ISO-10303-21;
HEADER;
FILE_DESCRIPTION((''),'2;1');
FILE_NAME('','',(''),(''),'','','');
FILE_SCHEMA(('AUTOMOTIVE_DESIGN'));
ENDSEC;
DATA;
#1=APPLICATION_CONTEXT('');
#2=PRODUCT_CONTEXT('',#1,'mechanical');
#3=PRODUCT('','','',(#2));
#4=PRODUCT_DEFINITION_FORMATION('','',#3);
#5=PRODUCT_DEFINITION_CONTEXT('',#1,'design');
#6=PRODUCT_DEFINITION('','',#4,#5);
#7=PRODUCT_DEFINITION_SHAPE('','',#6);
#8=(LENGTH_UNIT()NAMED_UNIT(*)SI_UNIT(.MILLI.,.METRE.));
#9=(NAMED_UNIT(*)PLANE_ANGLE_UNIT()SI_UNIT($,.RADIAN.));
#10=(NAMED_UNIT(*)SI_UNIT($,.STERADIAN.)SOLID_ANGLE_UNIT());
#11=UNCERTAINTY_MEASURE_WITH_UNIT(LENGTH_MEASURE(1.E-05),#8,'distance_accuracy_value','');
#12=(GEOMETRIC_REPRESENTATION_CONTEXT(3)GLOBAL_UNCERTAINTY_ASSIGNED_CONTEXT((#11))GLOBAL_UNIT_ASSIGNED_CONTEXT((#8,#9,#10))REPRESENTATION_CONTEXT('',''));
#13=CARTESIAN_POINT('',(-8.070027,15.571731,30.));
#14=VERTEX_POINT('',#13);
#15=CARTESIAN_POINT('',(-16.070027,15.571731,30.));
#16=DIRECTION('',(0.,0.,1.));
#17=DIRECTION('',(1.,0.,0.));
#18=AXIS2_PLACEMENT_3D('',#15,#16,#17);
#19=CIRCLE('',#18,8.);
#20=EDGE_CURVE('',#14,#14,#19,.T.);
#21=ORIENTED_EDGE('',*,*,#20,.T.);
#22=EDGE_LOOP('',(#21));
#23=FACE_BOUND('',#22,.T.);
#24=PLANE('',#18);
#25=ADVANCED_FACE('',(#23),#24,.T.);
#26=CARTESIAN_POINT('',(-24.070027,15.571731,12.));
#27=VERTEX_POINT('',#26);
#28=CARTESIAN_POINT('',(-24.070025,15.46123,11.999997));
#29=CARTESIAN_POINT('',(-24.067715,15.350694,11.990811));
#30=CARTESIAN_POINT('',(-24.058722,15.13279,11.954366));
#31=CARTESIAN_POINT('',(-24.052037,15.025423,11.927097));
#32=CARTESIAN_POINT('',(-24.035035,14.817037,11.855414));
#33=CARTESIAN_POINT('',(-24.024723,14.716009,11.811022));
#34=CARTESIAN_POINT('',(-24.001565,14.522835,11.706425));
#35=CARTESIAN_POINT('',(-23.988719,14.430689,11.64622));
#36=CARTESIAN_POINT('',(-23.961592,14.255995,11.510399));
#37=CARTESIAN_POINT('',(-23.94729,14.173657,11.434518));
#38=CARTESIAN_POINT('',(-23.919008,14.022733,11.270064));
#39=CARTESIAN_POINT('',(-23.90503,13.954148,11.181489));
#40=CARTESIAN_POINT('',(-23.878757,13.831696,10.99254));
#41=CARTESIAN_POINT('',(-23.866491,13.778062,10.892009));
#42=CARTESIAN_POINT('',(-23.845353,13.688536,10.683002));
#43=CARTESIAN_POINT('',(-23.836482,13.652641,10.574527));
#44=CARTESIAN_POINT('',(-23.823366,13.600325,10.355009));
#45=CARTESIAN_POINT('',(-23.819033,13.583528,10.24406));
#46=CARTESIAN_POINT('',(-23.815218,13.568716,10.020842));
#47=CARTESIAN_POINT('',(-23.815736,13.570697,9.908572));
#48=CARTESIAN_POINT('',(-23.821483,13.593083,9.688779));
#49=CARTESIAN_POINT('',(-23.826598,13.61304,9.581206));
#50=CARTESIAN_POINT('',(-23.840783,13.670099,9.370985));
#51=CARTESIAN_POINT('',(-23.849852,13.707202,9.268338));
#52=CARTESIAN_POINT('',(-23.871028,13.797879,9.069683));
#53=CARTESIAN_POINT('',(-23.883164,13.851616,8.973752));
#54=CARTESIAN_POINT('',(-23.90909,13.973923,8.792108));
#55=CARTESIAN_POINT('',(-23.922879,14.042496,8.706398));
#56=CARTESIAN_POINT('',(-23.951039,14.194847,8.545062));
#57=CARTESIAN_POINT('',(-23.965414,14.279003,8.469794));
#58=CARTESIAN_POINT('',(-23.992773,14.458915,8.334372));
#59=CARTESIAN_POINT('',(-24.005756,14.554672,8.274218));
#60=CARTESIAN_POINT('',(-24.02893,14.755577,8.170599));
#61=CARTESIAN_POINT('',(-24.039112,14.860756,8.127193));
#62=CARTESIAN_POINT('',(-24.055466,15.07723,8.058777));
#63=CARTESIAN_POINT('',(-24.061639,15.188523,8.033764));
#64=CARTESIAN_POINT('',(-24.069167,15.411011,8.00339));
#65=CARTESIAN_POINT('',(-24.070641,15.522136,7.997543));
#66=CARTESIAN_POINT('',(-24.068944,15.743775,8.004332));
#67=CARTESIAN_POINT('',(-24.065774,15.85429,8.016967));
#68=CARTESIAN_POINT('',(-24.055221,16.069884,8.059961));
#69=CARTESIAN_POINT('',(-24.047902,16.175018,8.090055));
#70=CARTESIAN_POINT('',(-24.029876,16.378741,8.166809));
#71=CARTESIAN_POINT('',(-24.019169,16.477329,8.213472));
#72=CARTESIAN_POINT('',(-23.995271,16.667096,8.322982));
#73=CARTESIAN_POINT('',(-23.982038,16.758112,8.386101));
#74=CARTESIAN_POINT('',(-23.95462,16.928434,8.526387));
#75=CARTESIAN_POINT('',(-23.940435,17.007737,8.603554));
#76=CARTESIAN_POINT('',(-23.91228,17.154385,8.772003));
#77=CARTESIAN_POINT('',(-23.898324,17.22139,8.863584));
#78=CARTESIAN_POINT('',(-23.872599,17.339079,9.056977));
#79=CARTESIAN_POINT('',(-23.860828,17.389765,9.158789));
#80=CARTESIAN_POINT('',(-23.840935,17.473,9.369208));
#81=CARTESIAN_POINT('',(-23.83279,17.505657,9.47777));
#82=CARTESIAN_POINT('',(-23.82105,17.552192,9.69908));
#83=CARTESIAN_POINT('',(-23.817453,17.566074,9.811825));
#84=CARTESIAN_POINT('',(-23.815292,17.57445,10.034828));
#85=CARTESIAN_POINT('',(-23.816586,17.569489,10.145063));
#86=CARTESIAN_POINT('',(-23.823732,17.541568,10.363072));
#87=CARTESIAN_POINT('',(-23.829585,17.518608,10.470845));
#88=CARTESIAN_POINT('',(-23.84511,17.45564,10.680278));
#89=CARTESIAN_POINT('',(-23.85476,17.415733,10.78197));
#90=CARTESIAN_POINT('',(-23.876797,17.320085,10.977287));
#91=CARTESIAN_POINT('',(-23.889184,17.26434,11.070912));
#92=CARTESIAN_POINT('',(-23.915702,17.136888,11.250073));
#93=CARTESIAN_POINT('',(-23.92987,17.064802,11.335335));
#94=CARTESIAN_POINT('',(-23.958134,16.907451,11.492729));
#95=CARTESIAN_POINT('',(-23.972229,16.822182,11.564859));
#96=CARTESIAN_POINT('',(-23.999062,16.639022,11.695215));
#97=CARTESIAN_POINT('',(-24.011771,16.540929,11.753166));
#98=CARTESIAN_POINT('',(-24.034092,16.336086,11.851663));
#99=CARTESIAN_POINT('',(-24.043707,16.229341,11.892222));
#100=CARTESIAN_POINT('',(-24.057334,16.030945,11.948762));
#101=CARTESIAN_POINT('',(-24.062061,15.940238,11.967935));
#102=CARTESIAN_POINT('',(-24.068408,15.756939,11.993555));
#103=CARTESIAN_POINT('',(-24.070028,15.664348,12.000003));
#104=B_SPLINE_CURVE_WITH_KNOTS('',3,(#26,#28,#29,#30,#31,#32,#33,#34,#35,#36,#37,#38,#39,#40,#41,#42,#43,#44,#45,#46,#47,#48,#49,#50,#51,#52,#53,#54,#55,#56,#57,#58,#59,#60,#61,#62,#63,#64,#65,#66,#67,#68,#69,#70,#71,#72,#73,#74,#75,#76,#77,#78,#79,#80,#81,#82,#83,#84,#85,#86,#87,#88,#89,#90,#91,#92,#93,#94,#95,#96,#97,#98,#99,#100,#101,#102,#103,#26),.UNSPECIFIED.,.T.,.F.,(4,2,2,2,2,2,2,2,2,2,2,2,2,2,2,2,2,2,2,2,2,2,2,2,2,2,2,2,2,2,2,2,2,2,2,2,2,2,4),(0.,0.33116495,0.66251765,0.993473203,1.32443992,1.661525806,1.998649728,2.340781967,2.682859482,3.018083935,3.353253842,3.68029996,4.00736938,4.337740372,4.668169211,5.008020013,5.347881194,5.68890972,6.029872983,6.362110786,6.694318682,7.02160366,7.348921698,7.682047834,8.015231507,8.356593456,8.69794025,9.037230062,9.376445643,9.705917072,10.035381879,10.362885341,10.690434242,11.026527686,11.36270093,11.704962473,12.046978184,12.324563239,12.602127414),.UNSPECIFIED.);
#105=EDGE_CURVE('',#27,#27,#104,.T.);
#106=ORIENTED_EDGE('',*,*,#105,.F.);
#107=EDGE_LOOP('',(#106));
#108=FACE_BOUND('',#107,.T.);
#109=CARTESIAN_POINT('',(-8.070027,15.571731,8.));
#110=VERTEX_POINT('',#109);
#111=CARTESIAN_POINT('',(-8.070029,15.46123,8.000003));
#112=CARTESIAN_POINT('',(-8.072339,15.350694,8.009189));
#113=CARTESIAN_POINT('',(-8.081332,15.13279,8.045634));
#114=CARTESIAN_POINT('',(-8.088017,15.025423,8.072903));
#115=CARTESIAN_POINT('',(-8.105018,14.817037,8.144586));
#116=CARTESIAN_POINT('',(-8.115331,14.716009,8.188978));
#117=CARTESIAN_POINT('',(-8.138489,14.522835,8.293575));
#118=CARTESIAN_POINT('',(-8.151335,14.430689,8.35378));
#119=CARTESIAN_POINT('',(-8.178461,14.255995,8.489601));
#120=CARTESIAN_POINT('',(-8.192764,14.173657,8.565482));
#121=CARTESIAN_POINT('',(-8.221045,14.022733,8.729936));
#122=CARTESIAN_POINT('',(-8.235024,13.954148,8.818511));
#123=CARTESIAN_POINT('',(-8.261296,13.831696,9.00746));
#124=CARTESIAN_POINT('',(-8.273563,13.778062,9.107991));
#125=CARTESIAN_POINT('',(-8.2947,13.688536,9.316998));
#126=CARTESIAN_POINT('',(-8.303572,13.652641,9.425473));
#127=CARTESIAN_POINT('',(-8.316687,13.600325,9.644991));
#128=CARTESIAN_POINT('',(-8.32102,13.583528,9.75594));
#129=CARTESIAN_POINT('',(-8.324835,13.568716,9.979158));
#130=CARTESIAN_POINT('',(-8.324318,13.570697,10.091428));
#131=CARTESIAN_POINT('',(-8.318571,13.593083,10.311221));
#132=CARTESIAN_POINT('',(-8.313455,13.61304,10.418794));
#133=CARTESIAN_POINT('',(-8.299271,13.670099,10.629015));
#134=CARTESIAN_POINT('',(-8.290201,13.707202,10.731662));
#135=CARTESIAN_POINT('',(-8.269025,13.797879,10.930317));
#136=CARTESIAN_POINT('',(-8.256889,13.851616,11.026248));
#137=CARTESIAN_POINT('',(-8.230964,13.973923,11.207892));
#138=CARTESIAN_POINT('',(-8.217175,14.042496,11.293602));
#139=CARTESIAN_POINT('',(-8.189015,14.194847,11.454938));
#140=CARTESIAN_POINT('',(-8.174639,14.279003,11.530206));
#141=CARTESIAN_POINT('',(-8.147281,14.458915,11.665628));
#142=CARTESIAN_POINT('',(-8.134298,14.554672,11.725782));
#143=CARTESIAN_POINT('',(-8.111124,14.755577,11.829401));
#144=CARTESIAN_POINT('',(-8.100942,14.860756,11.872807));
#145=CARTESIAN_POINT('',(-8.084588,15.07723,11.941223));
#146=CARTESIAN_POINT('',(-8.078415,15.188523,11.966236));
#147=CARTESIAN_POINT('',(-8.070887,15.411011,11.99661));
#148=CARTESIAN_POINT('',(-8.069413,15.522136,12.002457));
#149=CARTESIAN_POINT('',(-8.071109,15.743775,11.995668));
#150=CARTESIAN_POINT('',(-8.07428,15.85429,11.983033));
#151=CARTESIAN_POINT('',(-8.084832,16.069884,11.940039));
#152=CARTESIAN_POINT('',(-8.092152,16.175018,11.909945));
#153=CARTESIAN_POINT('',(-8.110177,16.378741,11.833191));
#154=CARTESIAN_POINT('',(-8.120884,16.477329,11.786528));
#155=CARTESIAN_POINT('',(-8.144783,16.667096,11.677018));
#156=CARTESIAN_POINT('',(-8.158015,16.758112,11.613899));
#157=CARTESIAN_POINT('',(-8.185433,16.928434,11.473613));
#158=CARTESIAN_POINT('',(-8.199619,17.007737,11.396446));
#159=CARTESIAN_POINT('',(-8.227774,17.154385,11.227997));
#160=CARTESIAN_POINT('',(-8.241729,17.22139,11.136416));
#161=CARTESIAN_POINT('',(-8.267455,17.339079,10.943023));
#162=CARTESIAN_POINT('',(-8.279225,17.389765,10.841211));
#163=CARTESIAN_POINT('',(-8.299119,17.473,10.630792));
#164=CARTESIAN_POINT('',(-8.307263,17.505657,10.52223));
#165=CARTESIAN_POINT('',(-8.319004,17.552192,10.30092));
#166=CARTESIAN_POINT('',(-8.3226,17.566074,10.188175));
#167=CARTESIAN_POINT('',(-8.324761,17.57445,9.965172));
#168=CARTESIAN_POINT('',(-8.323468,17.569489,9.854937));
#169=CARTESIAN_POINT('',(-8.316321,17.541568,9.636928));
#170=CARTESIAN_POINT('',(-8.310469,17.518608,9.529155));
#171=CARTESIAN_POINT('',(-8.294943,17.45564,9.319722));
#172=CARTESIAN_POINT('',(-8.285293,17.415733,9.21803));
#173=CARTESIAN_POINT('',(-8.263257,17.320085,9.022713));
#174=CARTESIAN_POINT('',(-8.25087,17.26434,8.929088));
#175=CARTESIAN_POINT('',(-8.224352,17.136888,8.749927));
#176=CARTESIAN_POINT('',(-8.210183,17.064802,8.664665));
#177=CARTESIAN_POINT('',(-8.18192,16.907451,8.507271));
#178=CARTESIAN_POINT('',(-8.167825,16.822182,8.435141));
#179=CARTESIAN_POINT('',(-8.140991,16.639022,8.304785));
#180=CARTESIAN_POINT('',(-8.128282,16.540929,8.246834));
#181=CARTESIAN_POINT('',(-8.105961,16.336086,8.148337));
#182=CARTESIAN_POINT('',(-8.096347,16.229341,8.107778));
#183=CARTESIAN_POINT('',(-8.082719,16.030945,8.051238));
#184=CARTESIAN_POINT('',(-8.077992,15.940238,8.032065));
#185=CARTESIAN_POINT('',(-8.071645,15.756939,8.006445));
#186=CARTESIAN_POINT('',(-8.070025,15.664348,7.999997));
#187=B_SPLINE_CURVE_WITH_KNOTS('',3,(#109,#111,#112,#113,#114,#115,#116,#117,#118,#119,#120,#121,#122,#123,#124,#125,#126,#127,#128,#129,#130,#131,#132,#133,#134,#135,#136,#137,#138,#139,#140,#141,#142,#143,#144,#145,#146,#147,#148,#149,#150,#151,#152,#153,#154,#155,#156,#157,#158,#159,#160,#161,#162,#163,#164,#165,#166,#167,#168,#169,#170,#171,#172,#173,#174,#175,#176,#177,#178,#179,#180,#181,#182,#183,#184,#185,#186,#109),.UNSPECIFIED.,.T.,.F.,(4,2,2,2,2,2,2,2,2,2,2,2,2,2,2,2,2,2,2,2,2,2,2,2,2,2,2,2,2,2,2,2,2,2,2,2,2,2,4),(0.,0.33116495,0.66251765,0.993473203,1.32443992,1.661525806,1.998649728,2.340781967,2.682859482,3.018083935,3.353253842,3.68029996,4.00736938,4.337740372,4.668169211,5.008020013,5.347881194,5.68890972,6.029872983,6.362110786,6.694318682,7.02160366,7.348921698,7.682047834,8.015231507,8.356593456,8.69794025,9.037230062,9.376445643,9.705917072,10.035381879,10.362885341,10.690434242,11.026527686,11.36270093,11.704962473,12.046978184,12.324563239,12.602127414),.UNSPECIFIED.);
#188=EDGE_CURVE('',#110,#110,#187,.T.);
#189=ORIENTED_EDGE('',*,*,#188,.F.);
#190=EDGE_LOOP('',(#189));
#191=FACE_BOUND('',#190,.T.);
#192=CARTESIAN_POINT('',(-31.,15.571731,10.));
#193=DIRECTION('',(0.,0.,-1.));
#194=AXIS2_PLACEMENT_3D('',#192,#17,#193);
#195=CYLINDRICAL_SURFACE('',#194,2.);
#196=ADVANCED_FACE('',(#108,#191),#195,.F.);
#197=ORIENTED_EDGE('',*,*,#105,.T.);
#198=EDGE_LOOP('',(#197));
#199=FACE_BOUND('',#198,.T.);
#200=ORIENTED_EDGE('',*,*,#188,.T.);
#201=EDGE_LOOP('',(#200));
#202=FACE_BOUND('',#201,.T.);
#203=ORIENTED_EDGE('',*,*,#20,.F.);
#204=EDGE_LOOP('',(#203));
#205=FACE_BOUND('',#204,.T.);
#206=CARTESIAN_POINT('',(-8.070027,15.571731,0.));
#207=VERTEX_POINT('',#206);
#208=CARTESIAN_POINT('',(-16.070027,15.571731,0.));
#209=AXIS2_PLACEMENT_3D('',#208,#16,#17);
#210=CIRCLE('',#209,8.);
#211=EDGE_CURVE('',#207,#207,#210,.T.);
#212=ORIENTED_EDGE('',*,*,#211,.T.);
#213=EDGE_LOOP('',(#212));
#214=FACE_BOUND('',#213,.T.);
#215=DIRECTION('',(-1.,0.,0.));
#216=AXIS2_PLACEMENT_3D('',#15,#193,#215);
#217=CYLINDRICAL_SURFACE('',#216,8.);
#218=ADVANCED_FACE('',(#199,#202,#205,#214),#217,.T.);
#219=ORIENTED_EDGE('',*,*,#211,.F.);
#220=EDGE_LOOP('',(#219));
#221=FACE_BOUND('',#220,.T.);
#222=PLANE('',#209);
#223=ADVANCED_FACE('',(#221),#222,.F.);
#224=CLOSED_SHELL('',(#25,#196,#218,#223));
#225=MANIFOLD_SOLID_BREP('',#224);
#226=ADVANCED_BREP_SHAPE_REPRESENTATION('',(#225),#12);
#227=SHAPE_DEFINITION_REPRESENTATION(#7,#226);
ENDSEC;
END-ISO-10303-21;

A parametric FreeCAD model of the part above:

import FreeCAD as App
import Part
import Sketcher
from FreeCAD import Vector
Q = App.Units.Quantity

doc = App.newDocument("Part")
body = doc.addObject("PartDesign::Body", "Body")

# Sketch on XY plane
sketch1 = body.newObject("Sketcher::SketchObject", "Sketch")
sketch1.AttachmentSupport = (doc.getObject("XY_Plane"), [""])
sketch1.MapMode = "FlatFace"
sketch1.addGeometry(Part.Circle(Vector(-16, 16, 0), Vector(0, 0, 1), 8), False)
sketch1.addConstraint(Sketcher.Constraint("Diameter", 0, Q("16 mm")))
sketch1.addConstraint(Sketcher.Constraint("DistanceY", -1, 1, 0, 3, Q("15.571731 mm")))
sketch1.addConstraint(Sketcher.Constraint("DistanceX", 0, 3, -1, 1, Q("16.070027 mm")))
pad1 = body.newObject("PartDesign::Pad", "Pad")
pad1.Profile = sketch1
pad1.Length = 30

# Sketch on YZ plane
sketch2 = body.newObject("Sketcher::SketchObject", "Sketch001")
sketch2.AttachmentSupport = (doc.getObject("YZ_Plane"), [""])
sketch2.MapMode = "FlatFace"
sketch2.addGeometry(Part.Circle(Vector(15.6, 10, 0), Vector(0, 0, 1), 2), False)
sketch2.addConstraint(Sketcher.Constraint("Diameter", 0, Q("4 mm")))
sketch2.addConstraint(Sketcher.Constraint("DistanceY", -1, 1, 0, 3, Q("10 mm")))
sketch2.addConstraint(Sketcher.Constraint("DistanceX", -1, 1, 0, 3, Q("15.571731 mm")))
pocket1 = body.newObject("PartDesign::Pocket", "Pocket")
pocket1.Profile = sketch2
pocket1.Length = 31

doc.recompute()
